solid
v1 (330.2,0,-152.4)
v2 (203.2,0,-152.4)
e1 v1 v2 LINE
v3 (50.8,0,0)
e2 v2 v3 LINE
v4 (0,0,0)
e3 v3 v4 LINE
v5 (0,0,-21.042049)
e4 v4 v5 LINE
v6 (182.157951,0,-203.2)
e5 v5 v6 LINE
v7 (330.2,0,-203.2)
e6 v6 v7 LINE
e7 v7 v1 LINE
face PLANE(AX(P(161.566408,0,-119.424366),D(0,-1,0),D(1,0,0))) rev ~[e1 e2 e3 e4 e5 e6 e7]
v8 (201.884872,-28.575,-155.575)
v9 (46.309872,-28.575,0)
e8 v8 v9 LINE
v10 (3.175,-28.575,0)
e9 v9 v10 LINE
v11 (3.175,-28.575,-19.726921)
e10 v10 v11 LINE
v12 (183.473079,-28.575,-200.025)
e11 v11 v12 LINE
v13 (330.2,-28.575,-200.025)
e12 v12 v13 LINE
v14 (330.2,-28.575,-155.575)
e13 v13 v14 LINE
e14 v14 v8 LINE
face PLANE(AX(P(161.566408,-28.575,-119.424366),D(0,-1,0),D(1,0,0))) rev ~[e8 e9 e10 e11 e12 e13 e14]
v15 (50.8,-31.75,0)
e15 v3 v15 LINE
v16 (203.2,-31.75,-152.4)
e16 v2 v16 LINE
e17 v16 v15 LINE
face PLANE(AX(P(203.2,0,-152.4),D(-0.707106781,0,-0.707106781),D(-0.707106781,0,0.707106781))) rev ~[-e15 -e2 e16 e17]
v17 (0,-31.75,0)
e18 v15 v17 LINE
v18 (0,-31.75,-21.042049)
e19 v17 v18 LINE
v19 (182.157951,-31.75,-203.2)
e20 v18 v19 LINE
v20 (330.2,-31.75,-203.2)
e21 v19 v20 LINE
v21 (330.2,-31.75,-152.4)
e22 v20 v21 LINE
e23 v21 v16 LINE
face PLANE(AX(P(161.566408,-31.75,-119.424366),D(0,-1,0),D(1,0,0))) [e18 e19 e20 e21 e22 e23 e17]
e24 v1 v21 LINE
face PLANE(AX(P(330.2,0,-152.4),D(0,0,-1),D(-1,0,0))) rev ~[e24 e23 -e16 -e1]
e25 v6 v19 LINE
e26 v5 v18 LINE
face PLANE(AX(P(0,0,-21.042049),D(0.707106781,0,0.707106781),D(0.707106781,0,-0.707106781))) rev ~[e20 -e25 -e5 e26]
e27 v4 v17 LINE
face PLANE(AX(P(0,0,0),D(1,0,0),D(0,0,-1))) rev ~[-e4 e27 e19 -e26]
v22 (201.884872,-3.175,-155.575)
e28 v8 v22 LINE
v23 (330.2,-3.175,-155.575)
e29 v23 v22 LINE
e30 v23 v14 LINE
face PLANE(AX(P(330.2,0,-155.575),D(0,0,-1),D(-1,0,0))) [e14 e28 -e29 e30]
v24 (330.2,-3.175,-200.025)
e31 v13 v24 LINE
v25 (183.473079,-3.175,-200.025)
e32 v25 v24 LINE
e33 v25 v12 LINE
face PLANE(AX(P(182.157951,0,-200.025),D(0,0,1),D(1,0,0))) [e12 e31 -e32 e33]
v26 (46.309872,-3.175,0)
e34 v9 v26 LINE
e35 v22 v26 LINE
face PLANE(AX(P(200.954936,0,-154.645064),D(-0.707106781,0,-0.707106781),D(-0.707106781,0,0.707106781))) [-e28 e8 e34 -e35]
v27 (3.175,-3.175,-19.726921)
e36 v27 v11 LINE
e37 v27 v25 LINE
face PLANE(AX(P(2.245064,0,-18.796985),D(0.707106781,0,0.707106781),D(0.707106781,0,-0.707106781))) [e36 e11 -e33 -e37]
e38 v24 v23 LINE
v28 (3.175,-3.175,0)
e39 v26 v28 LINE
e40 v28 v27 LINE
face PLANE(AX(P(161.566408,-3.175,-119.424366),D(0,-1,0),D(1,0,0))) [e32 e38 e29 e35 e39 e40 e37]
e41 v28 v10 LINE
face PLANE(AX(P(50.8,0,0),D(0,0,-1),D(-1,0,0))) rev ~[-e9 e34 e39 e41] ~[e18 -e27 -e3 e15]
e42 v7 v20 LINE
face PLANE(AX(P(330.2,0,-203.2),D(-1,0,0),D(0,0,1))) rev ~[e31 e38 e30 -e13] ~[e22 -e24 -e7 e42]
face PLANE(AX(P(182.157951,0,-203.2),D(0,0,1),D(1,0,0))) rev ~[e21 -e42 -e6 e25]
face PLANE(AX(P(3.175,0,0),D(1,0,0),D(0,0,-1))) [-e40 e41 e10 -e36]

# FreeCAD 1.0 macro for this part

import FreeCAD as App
import Part
import Sketcher
from FreeCAD import Vector
Q = App.Units.Quantity


def faces_at(feature, points):
    """Names of the faces that lie closest to the given points."""
    faces = feature.Shape.Faces
    near = lambda p: min(range(len(faces)), key=lambda i: faces[i].distToShape(Part.Vertex(*p))[0])
    return sorted({f"Face{near(p) + 1}" for p in points})

doc = App.newDocument("Part")
body = doc.addObject("PartDesign::Body", "Body")

sketch1 = body.newObject("Sketcher::SketchObject", "Sketch")
sketch1.AttachmentSupport = (doc.getObject("XZ_Plane"), [""])
sketch1.MapMode = "FlatFace"
sketch1.addGeometry(Part.LineSegment(Vector(51, 0, 0), Vector(0, 0, 0)), False)
sketch1.addGeometry(Part.LineSegment(Vector(0, 0, 0), Vector(0, -21, 0)), False)
sketch1.addGeometry(Part.LineSegment(Vector(0, -21, 0), Vector(182, -203, 0)), False)
sketch1.addGeometry(Part.LineSegment(Vector(182, -203, 0), Vector(330, -203, 0)), False)
sketch1.addGeometry(Part.LineSegment(Vector(330, -203, 0), Vector(330, -152, 0)), False)
sketch1.addGeometry(Part.LineSegment(Vector(330, -152, 0), Vector(203, -152, 0)), False)
sketch1.addGeometry(Part.LineSegment(Vector(203, -152, 0), Vector(51, 0, 0)), False)
sketch1.addConstraint(Sketcher.Constraint("Coincident", 0, 2, 1, 1))
sketch1.addConstraint(Sketcher.Constraint("Coincident", 1, 2, 2, 1))
sketch1.addConstraint(Sketcher.Constraint("Coincident", 2, 2, 3, 1))
sketch1.addConstraint(Sketcher.Constraint("Coincident", 3, 2, 4, 1))
sketch1.addConstraint(Sketcher.Constraint("Coincident", 4, 2, 5, 1))
sketch1.addConstraint(Sketcher.Constraint("Coincident", 5, 2, 6, 1))
sketch1.addConstraint(Sketcher.Constraint("Coincident", 6, 2, 0, 1))
sketch1.addConstraint(Sketcher.Constraint("Horizontal", 0))
sketch1.addConstraint(Sketcher.Constraint("Vertical", 1))
sketch1.addConstraint(Sketcher.Constraint("Horizontal", 3))
sketch1.addConstraint(Sketcher.Constraint("Vertical", 4))
sketch1.addConstraint(Sketcher.Constraint("Horizontal", 5))
sketch1.addConstraint(Sketcher.Constraint("Coincident", 0, 2, -1, 1))
sketch1.addConstraint(Sketcher.Constraint("Parallel", 2, 6))
sketch1.addConstraint(Sketcher.Constraint("Equal", 0, 4))
sketch1.addConstraint(Sketcher.Constraint("DistanceX", 0, 2, 0, 1, Q("2 in")))
sketch1.addConstraint(Sketcher.Constraint("DistanceX", 5, 2, 5, 1, Q("5 in")))
sketch1.addConstraint(Sketcher.Constraint("DistanceY", 2, 2, -1, 1, Q("8 in")))
sketch1.addConstraint(Sketcher.Constraint("DistanceX", -1, 1, 3, 2, Q("13 in")))
sketch1.addConstraint(Sketcher.Constraint("DistanceX", 3, 1, 3, 2, 148.042049))
pad1 = body.newObject("PartDesign::Pad", "Pad")
pad1.Profile = sketch1
pad1.Length = Q("1.25 in")
doc.recompute()

thickness = body.newObject("PartDesign::Thickness", "Thickness")
thickness.Base = (pad1, faces_at(pad1, [(25.4, -15.875, 0), (330.2, -15.875, -177.8)]))
thickness.Value = Q("0.125 in")
thickness.Reversed = True
thickness.Join = "Intersection"

doc.recompute()
